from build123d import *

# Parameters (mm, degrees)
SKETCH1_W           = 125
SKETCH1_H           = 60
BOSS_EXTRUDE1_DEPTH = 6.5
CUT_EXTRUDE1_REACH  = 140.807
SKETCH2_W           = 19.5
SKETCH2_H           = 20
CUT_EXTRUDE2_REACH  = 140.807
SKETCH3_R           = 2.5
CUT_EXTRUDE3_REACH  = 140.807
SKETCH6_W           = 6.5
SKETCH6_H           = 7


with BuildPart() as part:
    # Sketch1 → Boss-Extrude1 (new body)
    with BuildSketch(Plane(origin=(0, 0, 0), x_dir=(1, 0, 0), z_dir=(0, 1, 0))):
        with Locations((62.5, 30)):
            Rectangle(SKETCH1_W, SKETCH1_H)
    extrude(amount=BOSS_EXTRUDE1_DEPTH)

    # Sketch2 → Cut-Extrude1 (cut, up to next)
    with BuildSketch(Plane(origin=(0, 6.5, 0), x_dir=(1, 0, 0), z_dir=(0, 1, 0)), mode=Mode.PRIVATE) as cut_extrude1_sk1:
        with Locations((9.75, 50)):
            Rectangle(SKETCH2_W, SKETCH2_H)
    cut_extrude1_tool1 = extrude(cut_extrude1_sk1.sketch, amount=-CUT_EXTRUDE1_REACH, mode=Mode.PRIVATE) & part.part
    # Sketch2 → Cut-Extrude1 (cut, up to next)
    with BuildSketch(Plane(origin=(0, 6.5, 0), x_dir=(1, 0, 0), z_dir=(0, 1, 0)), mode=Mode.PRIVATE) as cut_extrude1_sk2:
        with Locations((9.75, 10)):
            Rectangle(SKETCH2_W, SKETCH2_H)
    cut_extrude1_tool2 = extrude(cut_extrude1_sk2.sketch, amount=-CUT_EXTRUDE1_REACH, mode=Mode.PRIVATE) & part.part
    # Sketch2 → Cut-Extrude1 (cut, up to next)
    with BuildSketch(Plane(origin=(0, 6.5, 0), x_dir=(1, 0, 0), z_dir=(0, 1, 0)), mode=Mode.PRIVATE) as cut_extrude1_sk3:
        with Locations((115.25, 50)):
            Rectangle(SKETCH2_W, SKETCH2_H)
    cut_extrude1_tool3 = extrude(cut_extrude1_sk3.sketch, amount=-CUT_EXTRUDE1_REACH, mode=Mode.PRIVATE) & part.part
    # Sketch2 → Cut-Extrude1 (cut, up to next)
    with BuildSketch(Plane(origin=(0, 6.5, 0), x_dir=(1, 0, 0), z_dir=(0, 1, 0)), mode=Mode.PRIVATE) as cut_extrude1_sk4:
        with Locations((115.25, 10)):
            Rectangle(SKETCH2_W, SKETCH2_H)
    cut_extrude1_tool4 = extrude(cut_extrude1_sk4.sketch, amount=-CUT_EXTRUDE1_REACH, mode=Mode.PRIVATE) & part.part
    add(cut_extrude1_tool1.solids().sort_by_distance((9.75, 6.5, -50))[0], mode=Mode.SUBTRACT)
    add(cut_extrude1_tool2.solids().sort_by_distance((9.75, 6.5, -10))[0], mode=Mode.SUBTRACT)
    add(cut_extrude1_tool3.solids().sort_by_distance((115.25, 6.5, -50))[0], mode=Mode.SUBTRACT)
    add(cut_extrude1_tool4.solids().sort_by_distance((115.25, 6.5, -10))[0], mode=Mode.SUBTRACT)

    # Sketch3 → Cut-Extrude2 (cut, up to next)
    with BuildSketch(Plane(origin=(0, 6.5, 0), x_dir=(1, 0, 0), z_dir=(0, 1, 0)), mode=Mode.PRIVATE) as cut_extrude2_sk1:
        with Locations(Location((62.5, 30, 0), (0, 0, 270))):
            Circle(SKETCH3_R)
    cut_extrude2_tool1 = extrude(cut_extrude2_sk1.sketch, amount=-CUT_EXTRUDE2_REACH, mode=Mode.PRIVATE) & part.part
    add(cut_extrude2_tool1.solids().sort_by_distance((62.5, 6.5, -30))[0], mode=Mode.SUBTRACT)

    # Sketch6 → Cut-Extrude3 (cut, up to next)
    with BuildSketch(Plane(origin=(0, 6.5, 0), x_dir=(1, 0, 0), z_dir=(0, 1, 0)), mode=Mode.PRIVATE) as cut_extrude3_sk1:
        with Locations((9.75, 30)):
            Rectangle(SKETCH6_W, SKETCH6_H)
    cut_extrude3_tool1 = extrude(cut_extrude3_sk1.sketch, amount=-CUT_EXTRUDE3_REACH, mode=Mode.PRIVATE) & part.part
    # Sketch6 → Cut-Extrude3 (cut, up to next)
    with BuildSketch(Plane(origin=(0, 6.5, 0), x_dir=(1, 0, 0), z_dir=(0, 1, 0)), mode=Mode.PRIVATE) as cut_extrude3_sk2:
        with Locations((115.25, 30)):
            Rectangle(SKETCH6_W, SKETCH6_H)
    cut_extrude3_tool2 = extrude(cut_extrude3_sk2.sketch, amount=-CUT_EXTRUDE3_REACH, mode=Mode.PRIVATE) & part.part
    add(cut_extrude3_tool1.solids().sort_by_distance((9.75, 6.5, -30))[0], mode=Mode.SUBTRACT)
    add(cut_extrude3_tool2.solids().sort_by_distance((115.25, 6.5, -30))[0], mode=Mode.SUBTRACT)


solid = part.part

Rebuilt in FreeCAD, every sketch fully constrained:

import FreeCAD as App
import Part
import Sketcher
Q = App.Units.Quantity


def add_polygon(sketch, points):
    """Adds a closed chain of lines whose ends are joined by coincident constraints."""
    first, n = sketch.GeometryCount, len(points)
    for a, b in zip(points, points[1:] + points[:1]):
        sketch.addGeometry(Part.LineSegment(App.Vector(*a, 0), App.Vector(*b, 0)), False)
    for i in range(n):
        sketch.addConstraint(Sketcher.Constraint("Coincident", first + i, 2, first + (i + 1) % n, 1))

doc = App.newDocument("Part")
params = doc.addObject("Spreadsheet::Sheet", "Params")
for row, (alias, value) in enumerate([
    ("sketch1_width", "125 mm"),
    ("sketch1_height", "60 mm"),
    ("pad1_length", "6.5 mm"),
    ("sketch2_height", "20 mm"),
    ("sketch2_width", "19.5 mm"),
    ("sketch3_height", "20 mm"),
    ("sketch3_width", "19.5 mm"),
    ("sketch4_height", "20 mm"),
    ("sketch4_width", "19.5 mm"),
    ("sketch5_height", "20 mm"),
    ("sketch5_width", "19.5 mm"),
    ("sketch6_diameter", "5 mm"),
    ("sketch7_height", "7 mm"),
    ("sketch7_width", "6.5 mm"),
    ("sketch8_height", "7 mm"),
    ("sketch8_width", "6.5 mm"),
], start=1):
    params.set(f"A{row}", alias)
    params.set(f"B{row}", "=" + value)
    params.setAlias(f"B{row}", alias)

body = doc.addObject("PartDesign::Body", "Body")

# Sketch on XZ plane
sketch1 = body.newObject("Sketcher::SketchObject", "Sketch")
sketch1.AttachmentSupport = (doc.getObject("XZ_Plane"), [""])
sketch1.MapMode = "FlatFace"
add_polygon(sketch1, [(0, -60), (0, 0), (125, 0), (125, -60)])  # lines 0-3
sketch1.addConstraint(Sketcher.Constraint("Vertical", 0))
sketch1.addConstraint(Sketcher.Constraint("Horizontal", 1))
sketch1.addConstraint(Sketcher.Constraint("Vertical", 2))
sketch1.addConstraint(Sketcher.Constraint("Horizontal", 3))
sketch1.addConstraint(Sketcher.Constraint("Coincident", 0, 2, -1, 1))
sketch1.addConstraint(Sketcher.Constraint("DistanceX", 1, 1, 1, 2, Q("125 mm")))
sketch1.addConstraint(Sketcher.Constraint("DistanceY", 0, 1, 0, 2, Q("60 mm")))
sketch1.setExpression("Constraints[9]", "Params.sketch1_width")
sketch1.setExpression("Constraints[10]", "Params.sketch1_height")
pad1 = body.newObject("PartDesign::Pad", "Pad")
pad1.Profile = sketch1
pad1.setExpression("Length", "Params.pad1_length")
pad1.Reversed = True

# Sketch on XZ plane
sketch2 = body.newObject("Sketcher::SketchObject", "Sketch001")
sketch2.AttachmentSupport = (doc.getObject("XZ_Plane"), [""])
sketch2.MapMode = "FlatFace"
sketch2.AttachmentOffset = App.Placement(App.Vector(0, 0, -6.5), App.Rotation())
add_polygon(sketch2, [(0, -60), (0, -40), (19.5, -40), (19.5, -60)])  # lines 0-3
sketch2.addConstraint(Sketcher.Constraint("Vertical", 0))
sketch2.addConstraint(Sketcher.Constraint("Horizontal", 1))
sketch2.addConstraint(Sketcher.Constraint("Vertical", 2))
sketch2.addConstraint(Sketcher.Constraint("Horizontal", 3))
sketch2.addConstraint(Sketcher.Constraint("PointOnObject", 0, 2, -2))
sketch2.addConstraint(Sketcher.Constraint("DistanceY", 0, 1, 0, 2, Q("20 mm")))
sketch2.addConstraint(Sketcher.Constraint("DistanceX", 1, 1, 1, 2, Q("19.5 mm")))
sketch2.addConstraint(Sketcher.Constraint("DistanceY", 0, 2, -1, 1, Q("40 mm")))
sketch2.setExpression("Constraints[9]", "Params.sketch2_height")
sketch2.setExpression("Constraints[10]", "Params.sketch2_width")
pocket1 = body.newObject("PartDesign::Pocket", "Pocket")
pocket1.Profile = sketch2
pocket1.Type = "UpToFirst"
pocket1.Reversed = True

# Sketch on XZ plane
sketch3 = body.newObject("Sketcher::SketchObject", "Sketch002")
sketch3.AttachmentSupport = (doc.getObject("XZ_Plane"), [""])
sketch3.MapMode = "FlatFace"
sketch3.AttachmentOffset = App.Placement(App.Vector(0, 0, -6.5), App.Rotation())
add_polygon(sketch3, [(0, -20), (0, 0), (19.5, 0), (19.5, -20)])  # lines 0-3
sketch3.addConstraint(Sketcher.Constraint("Vertical", 0))
sketch3.addConstraint(Sketcher.Constraint("Horizontal", 1))
sketch3.addConstraint(Sketcher.Constraint("Vertical", 2))
sketch3.addConstraint(Sketcher.Constraint("Horizontal", 3))
sketch3.addConstraint(Sketcher.Constraint("Coincident", 0, 2, -1, 1))
sketch3.addConstraint(Sketcher.Constraint("DistanceY", 0, 1, 0, 2, Q("20 mm")))
sketch3.addConstraint(Sketcher.Constraint("DistanceX", 1, 1, 1, 2, Q("19.5 mm")))
sketch3.setExpression("Constraints[9]", "Params.sketch3_height")
sketch3.setExpression("Constraints[10]", "Params.sketch3_width")
pocket2 = body.newObject("PartDesign::Pocket", "Pocket001")
pocket2.Profile = sketch3
pocket2.Type = "UpToFirst"
pocket2.Reversed = True

# Sketch on XZ plane
sketch4 = body.newObject("Sketcher::SketchObject", "Sketch003")
sketch4.AttachmentSupport = (doc.getObject("XZ_Plane"), [""])
sketch4.MapMode = "FlatFace"
sketch4.AttachmentOffset = App.Placement(App.Vector(0, 0, -6.5), App.Rotation())
add_polygon(sketch4, [(105.5, -60), (105.5, -40), (125, -40), (125, -60)])  # lines 0-3
sketch4.addConstraint(Sketcher.Constraint("Vertical", 0))
sketch4.addConstraint(Sketcher.Constraint("Horizontal", 1))
sketch4.addConstraint(Sketcher.Constraint("Vertical", 2))
sketch4.addConstraint(Sketcher.Constraint("Horizontal", 3))
sketch4.addConstraint(Sketcher.Constraint("DistanceY", 0, 1, 0, 2, Q("20 mm")))
sketch4.addConstraint(Sketcher.Constraint("DistanceX", 1, 1, 1, 2, Q("19.5 mm")))
sketch4.addConstraint(Sketcher.Constraint("DistanceY", 0, 2, -1, 1, Q("40 mm")))
sketch4.addConstraint(Sketcher.Constraint("DistanceX", -1, 1, 1, 2, Q("125 mm")))
sketch4.setExpression("Constraints[8]", "Params.sketch4_height")
sketch4.setExpression("Constraints[9]", "Params.sketch4_width")
pocket3 = body.newObject("PartDesign::Pocket", "Pocket002")
pocket3.Profile = sketch4
pocket3.Type = "UpToFirst"
pocket3.Reversed = True

# Sketch on XZ plane
sketch5 = body.newObject("Sketcher::SketchObject", "Sketch004")
sketch5.AttachmentSupport = (doc.getObject("XZ_Plane"), [""])
sketch5.MapMode = "FlatFace"
sketch5.AttachmentOffset = App.Placement(App.Vector(0, 0, -6.5), App.Rotation())
add_polygon(sketch5, [(105.5, -20), (105.5, 0), (125, 0), (125, -20)])  # lines 0-3
sketch5.addConstraint(Sketcher.Constraint("Vertical", 0))
sketch5.addConstraint(Sketcher.Constraint("Horizontal", 1))
sketch5.addConstraint(Sketcher.Constraint("Vertical", 2))
sketch5.addConstraint(Sketcher.Constraint("Horizontal", 3))
sketch5.addConstraint(Sketcher.Constraint("PointOnObject", 0, 2, -1))
sketch5.addConstraint(Sketcher.Constraint("DistanceY", 0, 1, 0, 2, Q("20 mm")))
sketch5.addConstraint(Sketcher.Constraint("DistanceX", 1, 1, 1, 2, Q("19.5 mm")))
sketch5.addConstraint(Sketcher.Constraint("DistanceX", -1, 1, 1, 2, Q("125 mm")))
sketch5.setExpression("Constraints[9]", "Params.sketch5_height")
sketch5.setExpression("Constraints[10]", "Params.sketch5_width")
pocket4 = body.newObject("PartDesign::Pocket", "Pocket003")
pocket4.Profile = sketch5
pocket4.Type = "UpToFirst"
pocket4.Reversed = True

# Sketch on XZ plane
sketch6 = body.newObject("Sketcher::SketchObject", "Sketch005")
sketch6.AttachmentSupport = (doc.getObject("XZ_Plane"), [""])
sketch6.MapMode = "FlatFace"
sketch6.AttachmentOffset = App.Placement(App.Vector(0, 0, -6.5), App.Rotation())
sketch6.addGeometry(Part.Circle(App.Vector(62.5, -30, 0), App.Vector(0, 0, 1), 2.5), False)
sketch6.addConstraint(Sketcher.Constraint("Diameter", 0, Q("5 mm")))
sketch6.addConstraint(Sketcher.Constraint("DistanceY", 0, 3, -1, 1, Q("30 mm")))
sketch6.addConstraint(Sketcher.Constraint("DistanceX", -1, 1, 0, 3, Q("62.5 mm")))
sketch6.setExpression("Constraints[0]", "Params.sketch6_diameter")
pocket5 = body.newObject("PartDesign::Pocket", "Pocket004")
pocket5.Profile = sketch6
pocket5.Type = "UpToFirst"
pocket5.Reversed = True

# Sketch on XZ plane
sketch7 = body.newObject("Sketcher::SketchObject", "Sketch006")
sketch7.AttachmentSupport = (doc.getObject("XZ_Plane"), [""])
sketch7.MapMode = "FlatFace"
sketch7.AttachmentOffset = App.Placement(App.Vector(0, 0, -6.5), App.Rotation())
add_polygon(sketch7, [(6.5, -33.5), (6.5, -26.5), (13, -26.5), (13, -33.5)])  # lines 0-3
sketch7.addConstraint(Sketcher.Constraint("Vertical", 0))
sketch7.addConstraint(Sketcher.Constraint("Horizontal", 1))
sketch7.addConstraint(Sketcher.Constraint("Vertical", 2))
sketch7.addConstraint(Sketcher.Constraint("Horizontal", 3))
sketch7.addConstraint(Sketcher.Constraint("DistanceY", 0, 1, 0, 2, Q("7 mm")))
sketch7.addConstraint(Sketcher.Constraint("DistanceX", 1, 1, 1, 2, Q("6.5 mm")))
sketch7.addConstraint(Sketcher.Constraint("DistanceX", -1, 1, 1, 2, Q("13 mm")))
sketch7.addConstraint(Sketcher.Constraint("DistanceY", 0, 2, -1, 1, Q("26.5 mm")))
sketch7.setExpression("Constraints[8]", "Params.sketch7_height")
sketch7.setExpression("Constraints[9]", "Params.sketch7_width")
pocket6 = body.newObject("PartDesign::Pocket", "Pocket005")
pocket6.Profile = sketch7
pocket6.Type = "UpToFirst"
pocket6.Reversed = True

# Sketch on XZ plane
sketch8 = body.newObject("Sketcher::SketchObject", "Sketch007")
sketch8.AttachmentSupport = (doc.getObject("XZ_Plane"), [""])
sketch8.MapMode = "FlatFace"
sketch8.AttachmentOffset = App.Placement(App.Vector(0, 0, -6.5), App.Rotation())
add_polygon(sketch8, [(112, -33.5), (112, -26.5), (118.5, -26.5), (118.5, -33.5)])  # lines 0-3
sketch8.addConstraint(Sketcher.Constraint("Vertical", 0))
sketch8.addConstraint(Sketcher.Constraint("Horizontal", 1))
sketch8.addConstraint(Sketcher.Constraint("Vertical", 2))
sketch8.addConstraint(Sketcher.Constraint("Horizontal", 3))
sketch8.addConstraint(Sketcher.Constraint("DistanceY", 0, 1, 0, 2, Q("7 mm")))
sketch8.addConstraint(Sketcher.Constraint("DistanceX", 1, 1, 1, 2, Q("6.5 mm")))
sketch8.addConstraint(Sketcher.Constraint("DistanceX", -1, 1, 0, 2, Q("112 mm")))
sketch8.addConstraint(Sketcher.Constraint("DistanceY", 0, 2, -1, 1, Q("26.5 mm")))
sketch8.setExpression("Constraints[8]", "Params.sketch8_height")
sketch8.setExpression("Constraints[9]", "Params.sketch8_width")
pocket7 = body.newObject("PartDesign::Pocket", "Pocket006")
pocket7.Profile = sketch8
pocket7.Type = "UpToFirst"
pocket7.Reversed = True

doc.recompute()
